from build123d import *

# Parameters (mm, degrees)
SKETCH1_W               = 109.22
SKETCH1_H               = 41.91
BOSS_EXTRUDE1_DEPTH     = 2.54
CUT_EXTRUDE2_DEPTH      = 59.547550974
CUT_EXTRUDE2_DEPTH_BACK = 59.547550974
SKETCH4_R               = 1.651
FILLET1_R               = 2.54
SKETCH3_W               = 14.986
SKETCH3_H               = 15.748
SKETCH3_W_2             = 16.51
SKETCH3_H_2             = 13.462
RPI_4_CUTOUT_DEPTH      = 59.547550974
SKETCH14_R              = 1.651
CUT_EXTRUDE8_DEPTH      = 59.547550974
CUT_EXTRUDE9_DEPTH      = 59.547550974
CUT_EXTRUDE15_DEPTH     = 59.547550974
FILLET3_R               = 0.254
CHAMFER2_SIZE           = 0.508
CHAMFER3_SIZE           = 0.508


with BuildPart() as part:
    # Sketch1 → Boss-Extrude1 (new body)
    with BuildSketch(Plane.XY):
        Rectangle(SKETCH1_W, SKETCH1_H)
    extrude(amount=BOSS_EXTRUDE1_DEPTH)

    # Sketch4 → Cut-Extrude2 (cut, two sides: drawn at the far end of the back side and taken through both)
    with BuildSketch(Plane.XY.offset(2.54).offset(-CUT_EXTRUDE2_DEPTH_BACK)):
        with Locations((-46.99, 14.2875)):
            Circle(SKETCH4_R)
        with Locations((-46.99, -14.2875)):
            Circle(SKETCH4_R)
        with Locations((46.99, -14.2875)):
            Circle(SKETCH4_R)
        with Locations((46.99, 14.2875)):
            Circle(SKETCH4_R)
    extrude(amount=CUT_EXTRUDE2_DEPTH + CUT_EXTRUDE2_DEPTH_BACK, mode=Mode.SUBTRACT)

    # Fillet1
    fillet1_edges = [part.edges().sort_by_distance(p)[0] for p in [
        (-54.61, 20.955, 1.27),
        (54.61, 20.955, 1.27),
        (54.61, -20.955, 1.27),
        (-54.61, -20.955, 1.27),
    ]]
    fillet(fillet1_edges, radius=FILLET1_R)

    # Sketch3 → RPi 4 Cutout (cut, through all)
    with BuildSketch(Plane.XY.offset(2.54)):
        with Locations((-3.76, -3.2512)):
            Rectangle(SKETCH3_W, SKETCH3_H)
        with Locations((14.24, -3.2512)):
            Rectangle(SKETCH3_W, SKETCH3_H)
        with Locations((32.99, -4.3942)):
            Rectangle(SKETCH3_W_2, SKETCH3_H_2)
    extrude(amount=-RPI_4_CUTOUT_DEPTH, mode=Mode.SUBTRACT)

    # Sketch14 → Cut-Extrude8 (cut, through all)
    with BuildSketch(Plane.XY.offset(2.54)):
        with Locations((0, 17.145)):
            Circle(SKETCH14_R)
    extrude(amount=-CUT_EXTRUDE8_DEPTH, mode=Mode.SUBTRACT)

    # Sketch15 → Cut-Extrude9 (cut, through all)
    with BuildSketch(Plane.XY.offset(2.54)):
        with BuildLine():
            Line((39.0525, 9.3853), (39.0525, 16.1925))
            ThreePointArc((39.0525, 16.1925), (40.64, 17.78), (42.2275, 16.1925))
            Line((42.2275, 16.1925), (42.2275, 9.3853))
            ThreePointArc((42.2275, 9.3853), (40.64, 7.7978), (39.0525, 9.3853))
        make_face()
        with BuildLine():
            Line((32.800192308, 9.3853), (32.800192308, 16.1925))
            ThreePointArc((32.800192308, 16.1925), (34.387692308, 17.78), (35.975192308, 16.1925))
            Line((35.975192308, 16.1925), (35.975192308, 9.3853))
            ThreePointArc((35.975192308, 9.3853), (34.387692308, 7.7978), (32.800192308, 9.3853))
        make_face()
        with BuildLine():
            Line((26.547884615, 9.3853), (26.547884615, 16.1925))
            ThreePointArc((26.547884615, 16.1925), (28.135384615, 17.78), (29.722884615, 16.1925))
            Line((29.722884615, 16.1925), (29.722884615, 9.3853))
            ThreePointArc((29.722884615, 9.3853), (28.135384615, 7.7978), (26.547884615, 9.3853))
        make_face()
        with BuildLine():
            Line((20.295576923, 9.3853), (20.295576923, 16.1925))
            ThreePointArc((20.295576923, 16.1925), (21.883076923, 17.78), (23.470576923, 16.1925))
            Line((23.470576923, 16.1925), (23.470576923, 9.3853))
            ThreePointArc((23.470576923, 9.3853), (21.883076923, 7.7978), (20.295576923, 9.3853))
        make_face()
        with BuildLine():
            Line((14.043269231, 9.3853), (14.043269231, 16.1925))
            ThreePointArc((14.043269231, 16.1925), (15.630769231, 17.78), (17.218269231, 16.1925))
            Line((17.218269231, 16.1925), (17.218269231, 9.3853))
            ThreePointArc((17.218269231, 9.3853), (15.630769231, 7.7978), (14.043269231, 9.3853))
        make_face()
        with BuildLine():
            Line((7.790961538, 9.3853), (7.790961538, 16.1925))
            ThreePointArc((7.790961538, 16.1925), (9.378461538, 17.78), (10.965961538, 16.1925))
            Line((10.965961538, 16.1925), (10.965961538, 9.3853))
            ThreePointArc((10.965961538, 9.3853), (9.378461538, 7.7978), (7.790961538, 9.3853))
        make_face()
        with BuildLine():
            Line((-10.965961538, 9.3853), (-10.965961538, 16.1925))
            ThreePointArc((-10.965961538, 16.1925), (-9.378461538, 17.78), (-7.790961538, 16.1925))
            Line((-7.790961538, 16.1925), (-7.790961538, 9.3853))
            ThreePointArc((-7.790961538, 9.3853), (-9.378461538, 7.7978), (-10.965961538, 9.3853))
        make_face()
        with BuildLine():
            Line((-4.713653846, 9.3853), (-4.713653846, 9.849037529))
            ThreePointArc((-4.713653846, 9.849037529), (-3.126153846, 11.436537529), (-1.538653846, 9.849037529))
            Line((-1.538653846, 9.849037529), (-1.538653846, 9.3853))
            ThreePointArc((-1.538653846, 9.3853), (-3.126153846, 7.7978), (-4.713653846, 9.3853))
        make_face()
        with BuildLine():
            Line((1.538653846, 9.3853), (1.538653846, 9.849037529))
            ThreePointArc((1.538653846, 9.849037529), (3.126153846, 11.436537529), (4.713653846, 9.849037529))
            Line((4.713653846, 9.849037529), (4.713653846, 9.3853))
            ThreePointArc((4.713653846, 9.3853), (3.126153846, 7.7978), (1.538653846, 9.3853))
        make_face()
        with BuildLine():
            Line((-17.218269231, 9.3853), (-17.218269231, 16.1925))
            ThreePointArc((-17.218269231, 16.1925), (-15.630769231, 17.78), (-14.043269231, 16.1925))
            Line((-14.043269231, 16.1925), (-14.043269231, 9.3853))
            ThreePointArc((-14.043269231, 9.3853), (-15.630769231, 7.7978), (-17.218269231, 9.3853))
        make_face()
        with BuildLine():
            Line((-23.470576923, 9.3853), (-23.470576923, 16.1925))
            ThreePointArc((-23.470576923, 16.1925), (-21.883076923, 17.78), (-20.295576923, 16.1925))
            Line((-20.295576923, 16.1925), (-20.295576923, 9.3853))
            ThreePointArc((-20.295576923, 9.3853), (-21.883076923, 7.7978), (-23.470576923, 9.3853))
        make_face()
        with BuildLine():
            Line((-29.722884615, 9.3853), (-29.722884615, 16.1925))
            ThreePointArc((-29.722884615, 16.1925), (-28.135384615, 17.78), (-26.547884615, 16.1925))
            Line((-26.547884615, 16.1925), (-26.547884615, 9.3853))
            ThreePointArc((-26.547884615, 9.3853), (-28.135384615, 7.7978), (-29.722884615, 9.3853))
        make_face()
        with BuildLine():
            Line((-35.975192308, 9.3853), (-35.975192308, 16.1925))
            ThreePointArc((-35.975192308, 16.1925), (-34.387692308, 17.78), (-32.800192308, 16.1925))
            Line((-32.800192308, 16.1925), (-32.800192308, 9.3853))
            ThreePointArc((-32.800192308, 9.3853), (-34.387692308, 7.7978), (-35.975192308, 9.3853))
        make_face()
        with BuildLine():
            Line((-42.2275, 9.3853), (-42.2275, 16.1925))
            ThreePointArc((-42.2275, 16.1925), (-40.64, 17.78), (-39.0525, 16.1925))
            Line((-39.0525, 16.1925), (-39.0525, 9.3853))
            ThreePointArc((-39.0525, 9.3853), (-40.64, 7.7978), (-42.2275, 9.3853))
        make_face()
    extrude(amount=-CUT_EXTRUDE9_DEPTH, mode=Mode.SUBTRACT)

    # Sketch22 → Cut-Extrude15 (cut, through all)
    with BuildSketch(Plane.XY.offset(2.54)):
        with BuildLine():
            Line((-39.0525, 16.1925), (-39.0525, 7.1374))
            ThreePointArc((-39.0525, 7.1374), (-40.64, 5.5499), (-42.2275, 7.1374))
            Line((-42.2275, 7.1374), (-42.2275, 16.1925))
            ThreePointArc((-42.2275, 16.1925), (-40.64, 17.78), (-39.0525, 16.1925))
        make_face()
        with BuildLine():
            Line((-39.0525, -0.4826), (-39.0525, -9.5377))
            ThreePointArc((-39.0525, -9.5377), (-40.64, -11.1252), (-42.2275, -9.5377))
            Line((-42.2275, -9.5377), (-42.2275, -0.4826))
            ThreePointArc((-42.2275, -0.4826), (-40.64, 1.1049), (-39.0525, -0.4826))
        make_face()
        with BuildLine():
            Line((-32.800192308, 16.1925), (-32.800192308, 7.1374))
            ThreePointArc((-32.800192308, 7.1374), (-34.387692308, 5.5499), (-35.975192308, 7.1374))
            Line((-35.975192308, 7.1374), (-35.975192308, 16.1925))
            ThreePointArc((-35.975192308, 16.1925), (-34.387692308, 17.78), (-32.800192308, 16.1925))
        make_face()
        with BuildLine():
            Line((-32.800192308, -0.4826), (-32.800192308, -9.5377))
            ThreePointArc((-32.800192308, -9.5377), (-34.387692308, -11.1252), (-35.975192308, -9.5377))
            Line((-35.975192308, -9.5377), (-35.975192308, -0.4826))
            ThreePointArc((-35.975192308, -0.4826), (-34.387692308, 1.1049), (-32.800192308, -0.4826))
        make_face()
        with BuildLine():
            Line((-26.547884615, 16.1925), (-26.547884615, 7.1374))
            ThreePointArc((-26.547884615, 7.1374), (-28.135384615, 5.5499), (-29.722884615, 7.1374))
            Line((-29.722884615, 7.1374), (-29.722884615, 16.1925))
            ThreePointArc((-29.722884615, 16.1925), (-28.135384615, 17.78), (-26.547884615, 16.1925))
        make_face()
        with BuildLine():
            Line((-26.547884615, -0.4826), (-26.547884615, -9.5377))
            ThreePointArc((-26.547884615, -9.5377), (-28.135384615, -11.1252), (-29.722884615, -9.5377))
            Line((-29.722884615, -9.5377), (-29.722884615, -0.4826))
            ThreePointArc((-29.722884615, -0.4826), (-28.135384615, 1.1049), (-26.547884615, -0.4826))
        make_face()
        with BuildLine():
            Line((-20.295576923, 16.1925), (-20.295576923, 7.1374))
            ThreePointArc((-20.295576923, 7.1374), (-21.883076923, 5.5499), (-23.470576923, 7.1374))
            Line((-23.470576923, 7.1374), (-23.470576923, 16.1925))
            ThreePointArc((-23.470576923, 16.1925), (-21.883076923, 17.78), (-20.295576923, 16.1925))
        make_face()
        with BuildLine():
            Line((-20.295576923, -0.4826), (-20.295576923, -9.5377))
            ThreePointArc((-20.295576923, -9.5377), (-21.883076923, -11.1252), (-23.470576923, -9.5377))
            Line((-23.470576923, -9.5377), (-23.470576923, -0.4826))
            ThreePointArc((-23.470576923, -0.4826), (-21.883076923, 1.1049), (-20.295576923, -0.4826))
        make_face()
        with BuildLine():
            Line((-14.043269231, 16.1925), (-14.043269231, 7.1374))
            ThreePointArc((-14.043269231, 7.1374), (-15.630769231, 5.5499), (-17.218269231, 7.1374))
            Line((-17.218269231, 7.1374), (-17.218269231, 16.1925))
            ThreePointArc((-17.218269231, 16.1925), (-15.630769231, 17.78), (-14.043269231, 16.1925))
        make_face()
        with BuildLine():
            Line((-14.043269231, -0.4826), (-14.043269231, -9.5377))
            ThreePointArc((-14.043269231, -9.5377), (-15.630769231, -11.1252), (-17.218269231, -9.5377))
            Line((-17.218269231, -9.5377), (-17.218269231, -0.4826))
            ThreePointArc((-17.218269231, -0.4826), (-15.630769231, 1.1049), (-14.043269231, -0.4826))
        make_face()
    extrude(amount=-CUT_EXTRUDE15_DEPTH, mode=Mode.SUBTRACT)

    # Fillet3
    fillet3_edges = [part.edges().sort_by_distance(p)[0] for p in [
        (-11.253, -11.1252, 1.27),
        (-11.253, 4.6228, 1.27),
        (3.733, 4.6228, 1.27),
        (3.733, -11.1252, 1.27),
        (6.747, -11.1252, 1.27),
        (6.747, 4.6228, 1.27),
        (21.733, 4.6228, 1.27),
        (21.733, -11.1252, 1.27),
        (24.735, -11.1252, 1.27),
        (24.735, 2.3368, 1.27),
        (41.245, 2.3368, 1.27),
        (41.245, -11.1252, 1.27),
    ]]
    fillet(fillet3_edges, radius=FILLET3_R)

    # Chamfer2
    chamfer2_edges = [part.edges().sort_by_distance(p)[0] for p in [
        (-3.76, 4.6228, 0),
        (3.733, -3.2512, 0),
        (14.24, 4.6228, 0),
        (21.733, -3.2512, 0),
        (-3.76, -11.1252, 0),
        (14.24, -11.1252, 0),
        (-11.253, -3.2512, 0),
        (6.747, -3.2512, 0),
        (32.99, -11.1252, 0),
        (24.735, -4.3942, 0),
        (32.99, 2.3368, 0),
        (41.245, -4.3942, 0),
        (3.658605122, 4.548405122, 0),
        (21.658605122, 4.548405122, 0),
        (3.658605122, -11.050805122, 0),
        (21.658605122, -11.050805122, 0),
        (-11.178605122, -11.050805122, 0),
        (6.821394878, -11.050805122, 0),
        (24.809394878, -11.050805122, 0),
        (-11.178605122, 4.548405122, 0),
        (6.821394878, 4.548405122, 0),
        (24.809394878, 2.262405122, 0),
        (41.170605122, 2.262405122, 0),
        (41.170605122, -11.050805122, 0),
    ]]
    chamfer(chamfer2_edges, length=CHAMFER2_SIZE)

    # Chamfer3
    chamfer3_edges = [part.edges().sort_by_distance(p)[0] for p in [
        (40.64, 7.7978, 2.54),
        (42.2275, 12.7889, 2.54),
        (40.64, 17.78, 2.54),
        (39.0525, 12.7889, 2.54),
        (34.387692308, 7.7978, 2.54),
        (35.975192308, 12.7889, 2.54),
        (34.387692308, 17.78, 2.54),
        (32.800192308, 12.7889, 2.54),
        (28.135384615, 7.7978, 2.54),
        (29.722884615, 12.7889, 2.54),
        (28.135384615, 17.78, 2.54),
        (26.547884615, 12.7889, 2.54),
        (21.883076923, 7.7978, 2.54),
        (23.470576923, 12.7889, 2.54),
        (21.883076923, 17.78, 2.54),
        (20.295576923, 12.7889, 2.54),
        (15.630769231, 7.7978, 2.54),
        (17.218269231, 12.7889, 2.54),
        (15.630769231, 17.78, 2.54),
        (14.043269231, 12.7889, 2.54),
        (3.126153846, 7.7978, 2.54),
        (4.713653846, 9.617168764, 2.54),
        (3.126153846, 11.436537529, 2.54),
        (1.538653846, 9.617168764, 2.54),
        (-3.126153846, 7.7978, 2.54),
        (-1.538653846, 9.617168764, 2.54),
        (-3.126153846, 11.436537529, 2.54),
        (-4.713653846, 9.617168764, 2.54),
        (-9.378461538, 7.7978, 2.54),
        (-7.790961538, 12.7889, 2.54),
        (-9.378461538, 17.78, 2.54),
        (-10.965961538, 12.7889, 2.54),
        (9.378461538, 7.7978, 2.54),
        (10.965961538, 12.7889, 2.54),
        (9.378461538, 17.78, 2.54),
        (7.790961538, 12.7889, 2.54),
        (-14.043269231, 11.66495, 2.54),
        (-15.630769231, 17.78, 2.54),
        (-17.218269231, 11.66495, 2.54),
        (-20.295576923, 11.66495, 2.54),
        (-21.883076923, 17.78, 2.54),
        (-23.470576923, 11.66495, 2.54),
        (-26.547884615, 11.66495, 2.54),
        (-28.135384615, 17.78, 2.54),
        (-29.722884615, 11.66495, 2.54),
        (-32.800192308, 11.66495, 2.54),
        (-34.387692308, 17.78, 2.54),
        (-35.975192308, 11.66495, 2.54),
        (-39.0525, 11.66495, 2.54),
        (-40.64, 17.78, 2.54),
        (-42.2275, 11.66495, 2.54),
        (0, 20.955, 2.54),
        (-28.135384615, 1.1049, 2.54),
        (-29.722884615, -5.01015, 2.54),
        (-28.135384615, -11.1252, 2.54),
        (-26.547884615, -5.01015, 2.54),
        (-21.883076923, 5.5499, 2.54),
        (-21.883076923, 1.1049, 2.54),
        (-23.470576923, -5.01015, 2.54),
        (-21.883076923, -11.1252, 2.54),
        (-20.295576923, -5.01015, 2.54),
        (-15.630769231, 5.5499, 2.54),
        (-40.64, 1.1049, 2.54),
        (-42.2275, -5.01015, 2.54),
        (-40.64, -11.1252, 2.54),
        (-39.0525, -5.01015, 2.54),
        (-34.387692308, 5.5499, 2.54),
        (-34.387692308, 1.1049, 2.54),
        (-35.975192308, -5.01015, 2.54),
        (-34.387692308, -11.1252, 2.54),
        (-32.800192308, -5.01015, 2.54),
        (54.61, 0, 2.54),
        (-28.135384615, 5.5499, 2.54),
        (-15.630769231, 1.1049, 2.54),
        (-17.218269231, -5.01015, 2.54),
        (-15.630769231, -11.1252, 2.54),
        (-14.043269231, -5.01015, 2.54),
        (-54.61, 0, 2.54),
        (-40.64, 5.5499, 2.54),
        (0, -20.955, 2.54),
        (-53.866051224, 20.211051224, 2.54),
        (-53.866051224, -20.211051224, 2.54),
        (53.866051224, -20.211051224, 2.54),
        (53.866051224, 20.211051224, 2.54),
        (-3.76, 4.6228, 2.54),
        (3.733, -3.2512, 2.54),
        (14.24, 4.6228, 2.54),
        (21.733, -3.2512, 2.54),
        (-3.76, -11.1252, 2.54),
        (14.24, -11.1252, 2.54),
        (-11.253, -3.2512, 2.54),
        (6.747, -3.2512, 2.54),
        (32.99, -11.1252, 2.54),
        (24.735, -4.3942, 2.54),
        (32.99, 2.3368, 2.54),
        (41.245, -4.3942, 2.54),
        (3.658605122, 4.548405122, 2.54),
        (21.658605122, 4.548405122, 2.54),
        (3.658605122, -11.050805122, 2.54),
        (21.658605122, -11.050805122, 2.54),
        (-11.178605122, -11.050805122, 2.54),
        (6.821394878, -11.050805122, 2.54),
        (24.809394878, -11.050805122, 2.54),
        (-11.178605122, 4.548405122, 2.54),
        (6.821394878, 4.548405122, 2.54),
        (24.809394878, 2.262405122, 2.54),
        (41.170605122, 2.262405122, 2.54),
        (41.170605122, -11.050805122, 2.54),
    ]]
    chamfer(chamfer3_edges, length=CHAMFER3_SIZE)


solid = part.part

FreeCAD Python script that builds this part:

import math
import FreeCAD as App
import Part
import Sketcher

V = App.Vector
Q = App.Units.Quantity


def edges_at(feature, points):
    """Names of the edges that pass closest to the given points."""
    edges = feature.Shape.Edges
    near = lambda p: min(range(len(edges)), key=lambda i: edges[i].distToShape(Part.Vertex(*p))[0])
    return sorted({f"Edge{near(p) + 1}" for p in points})

doc = App.newDocument("Part")
params = doc.addObject("Spreadsheet::Sheet", "Params")
for row, (alias, value) in enumerate([
    ("sketch1_width", "4.3 in"),
    ("sketch1_height", "1.65 in"),
    ("pad1_length", "0.1 in"),
    ("sketch2_diameter", "0.13 in"),
    ("fillet_radius", "0.1 in"),
    ("sketch3_width", "0.59 in"),
    ("sketch3_width2", "0.65 in"),
    ("sketch3_height", "0.62 in"),
    ("sketch3_height2", "0.53 in"),
    ("sketch4_diameter", "0.13 in"),
    ("sketch5_radius", "0.0625 in"),
    ("sketch5_height", "0.268 in"),
    ("sketch6_radius", "0.0625 in"),
    ("fillet2_radius", "0.01 in"),
    ("chamfer_size", "0.02 in"),
    ("chamfer2_size", "0.02 in"),
], start=1):
    params.set(f"A{row}", alias)
    params.set(f"B{row}", "=" + value)
    params.setAlias(f"B{row}", alias)

body = doc.addObject("PartDesign::Body", "Body")

# Sketch on XY plane
sketch1 = body.newObject("Sketcher::SketchObject", "Sketch")
sketch1.AttachmentSupport = (doc.getObject("XY_Plane"), [""])
sketch1.MapMode = "FlatFace"
sketch1.addGeometry([
    Part.LineSegment(V(-54.61, 20.955, 0), V(-54.61, -20.955, 0)),
    Part.LineSegment(V(-54.61, -20.955, 0), V(54.61, -20.955, 0)),
    Part.LineSegment(V(54.61, -20.955, 0), V(54.61, 20.955, 0)),
    Part.LineSegment(V(54.61, 20.955, 0), V(-54.61, 20.955, 0)),
], False)
sketch1.addConstraint([
    Sketcher.Constraint("Coincident", 0, 2, 1, 1),
    Sketcher.Constraint("Coincident", 1, 2, 2, 1),
    Sketcher.Constraint("Coincident", 2, 2, 3, 1),
    Sketcher.Constraint("Coincident", 3, 2, 0, 1),
    Sketcher.Constraint("Vertical", 0),
    Sketcher.Constraint("Horizontal", 1),
    Sketcher.Constraint("Vertical", 2),
    Sketcher.Constraint("Horizontal", 3),
    Sketcher.Constraint("Symmetric", 0, 2, 2, 2, -1, 1),
    Sketcher.Constraint("DistanceX", 1, 1, 1, 2, Q("4.3 in")),
    Sketcher.Constraint("DistanceY", 0, 2, 0, 1, Q("1.65 in")),
])
sketch1.setExpression("Constraints[9]", "Params.sketch1_width")
sketch1.setExpression("Constraints[10]", "Params.sketch1_height")
pad1 = body.newObject("PartDesign::Pad", "Pad")
pad1.Profile = sketch1
pad1.setExpression("Length", "Params.pad1_length")

# Sketch on XY plane
sketch2 = body.newObject("Sketcher::SketchObject", "Sketch001")
sketch2.AttachmentSupport = (doc.getObject("XY_Plane"), [""])
sketch2.MapMode = "FlatFace"
sketch2.AttachmentOffset = App.Placement(V(0, 0, 0.1 * 25.4), App.Rotation())
sketch2.addGeometry([
    Part.Circle(V(-46.99, 14.2875, 0), V(0, 0, 1), 1.651),
    Part.Circle(V(-46.99, -14.2875, 0), V(0, 0, 1), 1.651),
    Part.Circle(V(46.99, -14.2875, 0), V(0, 0, 1), 1.651),
    Part.Circle(V(46.99, 14.2875, 0), V(0, 0, 1), 1.651),
], False)
sketch2.addConstraint([
    Sketcher.Constraint("Equal", 0, 1),
    Sketcher.Constraint("Equal", 1, 2),
    Sketcher.Constraint("Equal", 2, 3),
    Sketcher.Constraint("Symmetric", 0, 3, 2, 3, -1, 1),
    Sketcher.Constraint("Symmetric", 1, 3, 3, 3, -1, 1),
    Sketcher.Constraint("Symmetric", 1, 3, 2, 3, -2),
    Sketcher.Constraint("Diameter", 0, Q("0.13 in")),
    Sketcher.Constraint("DistanceX", 1, 3, 2, 3, Q("3.7 in")),
    Sketcher.Constraint("DistanceY", -1, 1, 0, 3, Q("0.5625 in")),
])
sketch2.setExpression("Constraints[6]", "Params.sketch2_diameter")
pocket1 = body.newObject("PartDesign::Pocket", "Pocket")
pocket1.Profile = sketch2
pocket1.Type = "ThroughAll"
pocket1.Midplane = True
doc.recompute()

fillet = body.newObject("PartDesign::Fillet", "Fillet")
fillet.Base = (pocket1, edges_at(pocket1, [
    (-54.61, 20.955, 1.27),
    (54.61, 20.955, 1.27),
    (54.61, -20.955, 1.27),
    (-54.61, -20.955, 1.27),
]))
fillet.setExpression("Radius", "Params.fillet_radius")

# Sketch on XY plane
sketch3 = body.newObject("Sketcher::SketchObject", "Sketch002")
sketch3.AttachmentSupport = (doc.getObject("XY_Plane"), [""])
sketch3.MapMode = "FlatFace"
sketch3.AttachmentOffset = App.Placement(V(0, 0, 0.1 * 25.4), App.Rotation())
sketch3.addGeometry([
    Part.LineSegment(V(-11.253, 4.6228, 0), V(-11.253, -11.1252, 0)),  # 0
    Part.LineSegment(V(-11.253, -11.1252, 0), V(3.733, -11.1252, 0)),  # 1
    Part.LineSegment(V(3.733, -11.1252, 0), V(3.733, 4.6228, 0)),  # 2
    Part.LineSegment(V(3.733, 4.6228, 0), V(-11.253, 4.6228, 0)),  # 3
    Part.LineSegment(V(6.747, 4.6228, 0), V(6.747, -11.1252, 0)),  # 4
    Part.LineSegment(V(6.747, -11.1252, 0), V(21.733, -11.1252, 0)),  # 5
    Part.LineSegment(V(21.733, -11.1252, 0), V(21.733, 4.6228, 0)),  # 6
    Part.LineSegment(V(21.733, 4.6228, 0), V(6.747, 4.6228, 0)),  # 7
    Part.LineSegment(V(24.735, 2.3368, 0), V(24.735, -11.1252, 0)),  # 8
    Part.LineSegment(V(24.735, -11.1252, 0), V(41.245, -11.1252, 0)),  # 9
    Part.LineSegment(V(41.245, -11.1252, 0), V(41.245, 2.3368, 0)),  # 10
    Part.LineSegment(V(41.245, 2.3368, 0), V(24.735, 2.3368, 0)),  # 11
], False)
sketch3.addConstraint([
    Sketcher.Constraint("Coincident", 0, 2, 1, 1),
    Sketcher.Constraint("Coincident", 1, 2, 2, 1),
    Sketcher.Constraint("Coincident", 2, 2, 3, 1),
    Sketcher.Constraint("Coincident", 3, 2, 0, 1),
    Sketcher.Constraint("Coincident", 4, 2, 5, 1),
    Sketcher.Constraint("Coincident", 5, 2, 6, 1),
    Sketcher.Constraint("Coincident", 6, 2, 7, 1),
    Sketcher.Constraint("Coincident", 7, 2, 4, 1),
    Sketcher.Constraint("Coincident", 8, 2, 9, 1),
    Sketcher.Constraint("Coincident", 9, 2, 10, 1),
    Sketcher.Constraint("Coincident", 10, 2, 11, 1),
    Sketcher.Constraint("Coincident", 11, 2, 8, 1),
    Sketcher.Constraint("Vertical", 0),
    Sketcher.Constraint("Horizontal", 1),
    Sketcher.Constraint("Vertical", 2),
    Sketcher.Constraint("Horizontal", 3),
    Sketcher.Constraint("Vertical", 4),
    Sketcher.Constraint("Horizontal", 5),
    Sketcher.Constraint("Vertical", 6),
    Sketcher.Constraint("Horizontal", 7),
    Sketcher.Constraint("Vertical", 8),
    Sketcher.Constraint("Horizontal", 9),
    Sketcher.Constraint("Vertical", 10),
    Sketcher.Constraint("Horizontal", 11),
    Sketcher.Constraint("Horizontal", 1, 2, 4, 2),
    Sketcher.Constraint("Horizontal", 3, 2, 6, 2),
    Sketcher.Constraint("Horizontal", 5, 2, 8, 2),
    Sketcher.Constraint("Equal", 3, 5),
    Sketcher.Constraint("DistanceX", 1, 1, 1, 2, Q("0.59 in")),
    Sketcher.Constraint("DistanceX", 9, 1, 9, 2, Q("0.65 in")),
    Sketcher.Constraint("DistanceY", 0, 2, 0, 1, Q("0.62 in")),
    Sketcher.Constraint("DistanceY", 8, 2, 8, 1, Q("0.53 in")),
    Sketcher.Constraint("DistanceY", 0, 2, -1, 1, Q("0.438 in")),
    Sketcher.Constraint("DistanceX", 0, 2, -1, 1, Q("11.253 mm")),
    Sketcher.Constraint("DistanceX", -1, 1, 4, 2, Q("6.747 mm")),
    Sketcher.Constraint("DistanceX", -1, 1, 8, 2, Q("24.735 mm")),
])
sketch3.setExpression("Constraints[28]", "Params.sketch3_width")
sketch3.setExpression("Constraints[29]", "Params.sketch3_width2")
sketch3.setExpression("Constraints[30]", "Params.sketch3_height")
sketch3.setExpression("Constraints[31]", "Params.sketch3_height2")
pocket2 = body.newObject("PartDesign::Pocket", "Pocket001")
pocket2.Profile = sketch3
pocket2.Type = "ThroughAll"

# Sketch on XY plane
sketch4 = body.newObject("Sketcher::SketchObject", "Sketch003")
sketch4.AttachmentSupport = (doc.getObject("XY_Plane"), [""])
sketch4.MapMode = "FlatFace"
sketch4.AttachmentOffset = App.Placement(V(0, 0, 0.1 * 25.4), App.Rotation())
sketch4.addGeometry(Part.Circle(V(0, 17.145, 0), V(0, 0, 1), 1.651), False)
sketch4.addConstraint([
    Sketcher.Constraint("PointOnObject", 0, 3, -2),
    Sketcher.Constraint("Diameter", 0, Q("0.13 in")),
    Sketcher.Constraint("DistanceY", -1, 1, 0, 3, Q("0.675 in")),
])
sketch4.setExpression("Constraints[1]", "Params.sketch4_diameter")
pocket3 = body.newObject("PartDesign::Pocket", "Pocket002")
pocket3.Profile = sketch4
pocket3.Type = "ThroughAll"

# Sketch on XY plane
sketch5 = body.newObject("Sketcher::SketchObject", "Sketch004")
sketch5.AttachmentSupport = (doc.getObject("XY_Plane"), [""])
sketch5.MapMode = "FlatFace"
sketch5.AttachmentOffset = App.Placement(V(0, 0, 0.1 * 25.4), App.Rotation())
sketch5.addGeometry([
    Part.LineSegment(V(39.0525, 16.1925, 0), V(39.0525, 9.3853, 0)),  # 0
    Part.ArcOfCircle(Part.Circle(V(40.64, 9.3853, 0), V(0, 0, 1), 1.5875), math.radians(180), math.radians(360)),  # 1
    Part.LineSegment(V(42.2275, 9.3853, 0), V(42.2275, 16.1925, 0)),  # 2
    Part.ArcOfCircle(Part.Circle(V(40.64, 16.1925, 0), V(0, 0, 1), 1.5875), math.radians(0), math.radians(180)),  # 3
    Part.LineSegment(V(32.800192, 16.1925, 0), V(32.800192, 9.3853, 0)),  # 4
    Part.ArcOfCircle(Part.Circle(V(34.387692, 9.3853, 0), V(0, 0, 1), 1.5875), math.radians(180), math.radians(360)),  # 5
    Part.LineSegment(V(35.975192, 9.3853, 0), V(35.975192, 16.1925, 0)),  # 6
    Part.ArcOfCircle(Part.Circle(V(34.387692, 16.1925, 0), V(0, 0, 1), 1.5875), math.radians(0), math.radians(180)),  # 7
    Part.LineSegment(V(26.547885, 16.1925, 0), V(26.547885, 9.3853, 0)),  # 8
    Part.ArcOfCircle(Part.Circle(V(28.135385, 9.3853, 0), V(0, 0, 1), 1.5875), math.radians(180), math.radians(360)),  # 9
    Part.LineSegment(V(29.722885, 9.3853, 0), V(29.722885, 16.1925, 0)),  # 10
    Part.ArcOfCircle(Part.Circle(V(28.135385, 16.1925, 0), V(0, 0, 1), 1.5875), math.radians(0), math.radians(180)),  # 11
    Part.LineSegment(V(20.295577, 16.1925, 0), V(20.295577, 9.3853, 0)),  # 12
    Part.ArcOfCircle(Part.Circle(V(21.883077, 9.3853, 0), V(0, 0, 1), 1.5875), math.radians(180), math.radians(360)),  # 13
    Part.LineSegment(V(23.470577, 9.3853, 0), V(23.470577, 16.1925, 0)),  # 14
    Part.ArcOfCircle(Part.Circle(V(21.883077, 16.1925, 0), V(0, 0, 1), 1.5875), math.radians(0), math.radians(180)),  # 15
    Part.LineSegment(V(14.043269, 16.1925, 0), V(14.043269, 9.3853, 0)),  # 16
    Part.ArcOfCircle(Part.Circle(V(15.630769, 9.3853, 0), V(0, 0, 1), 1.5875), math.radians(180), math.radians(360)),  # 17
    Part.LineSegment(V(17.218269, 9.3853, 0), V(17.218269, 16.1925, 0)),  # 18
    Part.ArcOfCircle(Part.Circle(V(15.630769, 16.1925, 0), V(0, 0, 1), 1.5875), math.radians(0), math.radians(180)),  # 19
    Part.LineSegment(V(7.790962, 16.1925, 0), V(7.790962, 9.3853, 0)),  # 20
    Part.ArcOfCircle(Part.Circle(V(9.378462, 9.3853, 0), V(0, 0, 1), 1.5875), math.radians(180), math.radians(360)),  # 21
    Part.LineSegment(V(10.965962, 9.3853, 0), V(10.965962, 16.1925, 0)),  # 22
    Part.ArcOfCircle(Part.Circle(V(9.378462, 16.1925, 0), V(0, 0, 1), 1.5875), math.radians(0), math.radians(180)),  # 23
    Part.LineSegment(V(-10.965962, 16.1925, 0), V(-10.965962, 9.3853, 0)),  # 24
    Part.ArcOfCircle(Part.Circle(V(-9.378462, 9.3853, 0), V(0, 0, 1), 1.5875), math.radians(180), math.radians(360)),  # 25
    Part.LineSegment(V(-7.790962, 9.3853, 0), V(-7.790962, 16.1925, 0)),  # 26
    Part.ArcOfCircle(Part.Circle(V(-9.378462, 16.1925, 0), V(0, 0, 1), 1.5875), math.radians(0), math.radians(180)),  # 27
    Part.LineSegment(V(-4.713654, 9.849038, 0), V(-4.713654, 9.3853, 0)),  # 28
    Part.ArcOfCircle(Part.Circle(V(-3.126154, 9.3853, 0), V(0, 0, 1), 1.5875), math.radians(180), math.radians(360)),  # 29
    Part.LineSegment(V(-1.538654, 9.3853, 0), V(-1.538654, 9.849038, 0)),  # 30
    Part.ArcOfCircle(Part.Circle(V(-3.126154, 9.849038, 0), V(0, 0, 1), 1.5875), math.radians(0), math.radians(180)),  # 31
    Part.LineSegment(V(1.538654, 9.849038, 0), V(1.538654, 9.3853, 0)),  # 32
    Part.ArcOfCircle(Part.Circle(V(3.126154, 9.3853, 0), V(0, 0, 1), 1.5875), math.radians(180), math.radians(360)),  # 33
    Part.LineSegment(V(4.713654, 9.3853, 0), V(4.713654, 9.849038, 0)),  # 34
    Part.ArcOfCircle(Part.Circle(V(3.126154, 9.849038, 0), V(0, 0, 1), 1.5875), math.radians(0), math.radians(180)),  # 35
    Part.LineSegment(V(-17.218269, 16.1925, 0), V(-17.218269, 9.3853, 0)),  # 36
    Part.ArcOfCircle(Part.Circle(V(-15.630769, 9.3853, 0), V(0, 0, 1), 1.5875), math.radians(180), math.radians(360)),  # 37
    Part.LineSegment(V(-14.043269, 9.3853, 0), V(-14.043269, 16.1925, 0)),  # 38
    Part.ArcOfCircle(Part.Circle(V(-15.630769, 16.1925, 0), V(0, 0, 1), 1.5875), math.radians(0), math.radians(180)),  # 39
    Part.LineSegment(V(-23.470577, 16.1925, 0), V(-23.470577, 9.3853, 0)),  # 40
    Part.ArcOfCircle(Part.Circle(V(-21.883077, 9.3853, 0), V(0, 0, 1), 1.5875), math.radians(180), math.radians(360)),  # 41
    Part.LineSegment(V(-20.295577, 9.3853, 0), V(-20.295577, 16.1925, 0)),  # 42
    Part.ArcOfCircle(Part.Circle(V(-21.883077, 16.1925, 0), V(0, 0, 1), 1.5875), math.radians(0), math.radians(180)),  # 43
    Part.LineSegment(V(-29.722885, 16.1925, 0), V(-29.722885, 9.3853, 0)),  # 44
    Part.ArcOfCircle(Part.Circle(V(-28.135385, 9.3853, 0), V(0, 0, 1), 1.5875), math.radians(180), math.radians(360)),  # 45
    Part.LineSegment(V(-26.547885, 9.3853, 0), V(-26.547885, 16.1925, 0)),  # 46
    Part.ArcOfCircle(Part.Circle(V(-28.135385, 16.1925, 0), V(0, 0, 1), 1.5875), math.radians(0), math.radians(180)),  # 47
    Part.LineSegment(V(-35.975192, 16.1925, 0), V(-35.975192, 9.3853, 0)),  # 48
    Part.ArcOfCircle(Part.Circle(V(-34.387692, 9.3853, 0), V(0, 0, 1), 1.5875), math.radians(180), math.radians(360)),  # 49
    Part.LineSegment(V(-32.800192, 9.3853, 0), V(-32.800192, 16.1925, 0)),  # 50
    Part.ArcOfCircle(Part.Circle(V(-34.387692, 16.1925, 0), V(0, 0, 1), 1.5875), math.radians(0), math.radians(180)),  # 51
    Part.LineSegment(V(-42.2275, 16.1925, 0), V(-42.2275, 9.3853, 0)),  # 52
    Part.ArcOfCircle(Part.Circle(V(-40.64, 9.3853, 0), V(0, 0, 1), 1.5875), math.radians(180), math.radians(360)),  # 53
    Part.LineSegment(V(-39.0525, 9.3853, 0), V(-39.0525, 16.1925, 0)),  # 54
    Part.ArcOfCircle(Part.Circle(V(-40.64, 16.1925, 0), V(0, 0, 1), 1.5875), math.radians(0), math.radians(180)),  # 55
], False)
sketch5.addConstraint([
    Sketcher.Constraint("Tangent", 0, 2, 1, 1),
    Sketcher.Constraint("Tangent", 1, 2, 2, 1),
    Sketcher.Constraint("Tangent", 2, 2, 3, 1),
    Sketcher.Constraint("Tangent", 3, 2, 0, 1),
    Sketcher.Constraint("Tangent", 4, 2, 5, 1),
    Sketcher.Constraint("Tangent", 5, 2, 6, 1),
    Sketcher.Constraint("Tangent", 6, 2, 7, 1),
    Sketcher.Constraint("Tangent", 7, 2, 4, 1),
    Sketcher.Constraint("Tangent", 8, 2, 9, 1),
    Sketcher.Constraint("Tangent", 9, 2, 10, 1),
    Sketcher.Constraint("Tangent", 10, 2, 11, 1),
    Sketcher.Constraint("Tangent", 11, 2, 8, 1),
    Sketcher.Constraint("Tangent", 12, 2, 13, 1),
    Sketcher.Constraint("Tangent", 13, 2, 14, 1),
    Sketcher.Constraint("Tangent", 14, 2, 15, 1),
    Sketcher.Constraint("Tangent", 15, 2, 12, 1),
    Sketcher.Constraint("Tangent", 16, 2, 17, 1),
    Sketcher.Constraint("Tangent", 17, 2, 18, 1),
    Sketcher.Constraint("Tangent", 18, 2, 19, 1),
    Sketcher.Constraint("Tangent", 19, 2, 16, 1),
    Sketcher.Constraint("Tangent", 20, 2, 21, 1),
    Sketcher.Constraint("Tangent", 21, 2, 22, 1),
    Sketcher.Constraint("Tangent", 22, 2, 23, 1),
    Sketcher.Constraint("Tangent", 23, 2, 20, 1),
    Sketcher.Constraint("Tangent", 24, 2, 25, 1),
    Sketcher.Constraint("Tangent", 25, 2, 26, 1),
    Sketcher.Constraint("Tangent", 26, 2, 27, 1),
    Sketcher.Constraint("Tangent", 27, 2, 24, 1),
    Sketcher.Constraint("Tangent", 28, 2, 29, 1),
    Sketcher.Constraint("Tangent", 29, 2, 30, 1),
    Sketcher.Constraint("Tangent", 30, 2, 31, 1),
    Sketcher.Constraint("Tangent", 31, 2, 28, 1),
    Sketcher.Constraint("Tangent", 32, 2, 33, 1),
    Sketcher.Constraint("Tangent", 33, 2, 34, 1),
    Sketcher.Constraint("Tangent", 34, 2, 35, 1),
    Sketcher.Constraint("Tangent", 35, 2, 32, 1),
    Sketcher.Constraint("Tangent", 36, 2, 37, 1),
    Sketcher.Constraint("Tangent", 37, 2, 38, 1),
    Sketcher.Constraint("Tangent", 38, 2, 39, 1),
    Sketcher.Constraint("Tangent", 39, 2, 36, 1),
    Sketcher.Constraint("Tangent", 40, 2, 41, 1),
    Sketcher.Constraint("Tangent", 41, 2, 42, 1),
    Sketcher.Constraint("Tangent", 42, 2, 43, 1),
    Sketcher.Constraint("Tangent", 43, 2, 40, 1),
    Sketcher.Constraint("Tangent", 44, 2, 45, 1),
    Sketcher.Constraint("Tangent", 45, 2, 46, 1),
    Sketcher.Constraint("Tangent", 46, 2, 47, 1),
    Sketcher.Constraint("Tangent", 47, 2, 44, 1),
    Sketcher.Constraint("Tangent", 48, 2, 49, 1),
    Sketcher.Constraint("Tangent", 49, 2, 50, 1),
    Sketcher.Constraint("Tangent", 50, 2, 51, 1),
    Sketcher.Constraint("Tangent", 51, 2, 48, 1),
    Sketcher.Constraint("Tangent", 52, 2, 53, 1),
    Sketcher.Constraint("Tangent", 53, 2, 54, 1),
    Sketcher.Constraint("Tangent", 54, 2, 55, 1),
    Sketcher.Constraint("Tangent", 55, 2, 52, 1),
    Sketcher.Constraint("Vertical", 0),
    Sketcher.Constraint("Vertical", 2),
    Sketcher.Constraint("Vertical", 4),
    Sketcher.Constraint("Vertical", 6),
    Sketcher.Constraint("Vertical", 8),
    Sketcher.Constraint("Vertical", 10),
    Sketcher.Constraint("Vertical", 12),
    Sketcher.Constraint("Vertical", 14),
    Sketcher.Constraint("Vertical", 16),
    Sketcher.Constraint("Vertical", 18),
    Sketcher.Constraint("Vertical", 20),
    Sketcher.Constraint("Vertical", 22),
    Sketcher.Constraint("Vertical", 24),
    Sketcher.Constraint("Vertical", 26),
    Sketcher.Constraint("Vertical", 28),
    Sketcher.Constraint("Vertical", 30),
    Sketcher.Constraint("Vertical", 32),
    Sketcher.Constraint("Vertical", 34),
    Sketcher.Constraint("Vertical", 36),
    Sketcher.Constraint("Vertical", 38),
    Sketcher.Constraint("Vertical", 40),
    Sketcher.Constraint("Vertical", 42),
    Sketcher.Constraint("Vertical", 44),
    Sketcher.Constraint("Vertical", 46),
    Sketcher.Constraint("Vertical", 48),
    Sketcher.Constraint("Vertical", 50),
    Sketcher.Constraint("Vertical", 52),
    Sketcher.Constraint("Vertical", 54),
    Sketcher.Constraint("Equal", 3, 5),
    Sketcher.Constraint("Equal", 7, 9),
    Sketcher.Constraint("Equal", 11, 13),
    Sketcher.Constraint("Equal", 15, 17),
    Sketcher.Constraint("Equal", 19, 21),
    Sketcher.Constraint("Equal", 23, 25),
    Sketcher.Constraint("Equal", 27, 29),
    Sketcher.Constraint("Equal", 31, 33),
    Sketcher.Constraint("Equal", 35, 37),
    Sketcher.Constraint("Equal", 39, 41),
    Sketcher.Constraint("Equal", 43, 45),
    Sketcher.Constraint("Equal", 47, 49),
    Sketcher.Constraint("Equal", 51, 53),
    Sketcher.Constraint("Symmetric", 21, 3, 25, 3, -2),
    Sketcher.Constraint("Symmetric", 29, 3, 33, 3, -2),
    Sketcher.Constraint("Symmetric", 17, 3, 37, 3, -2),
    Sketcher.Constraint("Symmetric", 13, 3, 41, 3, -2),
    Sketcher.Constraint("Symmetric", 9, 3, 45, 3, -2),
    Sketcher.Constraint("Symmetric", 5, 3, 49, 3, -2),
    Sketcher.Constraint("Symmetric", 1, 3, 53, 3, -2),
    Sketcher.Constraint("Horizontal", 1, 3, 5, 3),
    Sketcher.Constraint("Horizontal", 3, 3, 7, 3),
    Sketcher.Constraint("Horizontal", 5, 3, 9, 3),
    Sketcher.Constraint("Horizontal", 7, 3, 11, 3),
    Sketcher.Constraint("Horizontal", 9, 3, 13, 3),
    Sketcher.Constraint("Horizontal", 11, 3, 15, 3),
    Sketcher.Constraint("Horizontal", 13, 3, 17, 3),
    Sketcher.Constraint("Horizontal", 15, 3, 19, 3),
    Sketcher.Constraint("Horizontal", 17, 3, 21, 3),
    Sketcher.Constraint("Horizontal", 19, 3, 23, 3),
    Sketcher.Constraint("Horizontal", 23, 3, 27, 3),
    Sketcher.Constraint("Horizontal", 25, 3, 29, 3),
    Sketcher.Constraint("Horizontal", 31, 3, 35, 3),
    Sketcher.Constraint("Horizontal", 27, 3, 39, 3),
    Sketcher.Constraint("Horizontal", 39, 3, 43, 3),
    Sketcher.Constraint("Horizontal", 43, 3, 47, 3),
    Sketcher.Constraint("Horizontal", 47, 3, 51, 3),
    Sketcher.Constraint("Horizontal", 51, 3, 55, 3),
    Sketcher.Constraint("Radius", 1, Q("0.0625 in")),
    Sketcher.Constraint("DistanceX", -1, 1, 1, 3, Q("1.6 in")),
    Sketcher.Constraint("DistanceY", 0, 2, 0, 1, Q("0.268 in")),
    Sketcher.Constraint("DistanceY", -1, 1, 1, 3, Q("0.3695 in")),
    Sketcher.Constraint("DistanceY", 28, 2, 28, 1, Q("0.463738 mm")),
    Sketcher.Constraint("DistanceX", -1, 1, 17, 3, Q("15.630769 mm")),
    Sketcher.Constraint("DistanceX", -1, 1, 21, 3, Q("9.378462 mm")),
    Sketcher.Constraint("DistanceX", -1, 1, 5, 3, Q("34.387692 mm")),
    Sketcher.Constraint("DistanceX", -1, 1, 9, 3, Q("28.135385 mm")),
    Sketcher.Constraint("DistanceX", -1, 1, 13, 3, Q("21.883077 mm")),
    Sketcher.Constraint("DistanceX", 29, 3, -1, 1, Q("3.126154 mm")),
])
sketch5.setExpression("Constraints[122]", "Params.sketch5_radius")
sketch5.setExpression("Constraints[124]", "Params.sketch5_height")
pocket4 = body.newObject("PartDesign::Pocket", "Pocket003")
pocket4.Profile = sketch5
pocket4.Type = "ThroughAll"

# Sketch on XY plane
sketch6 = body.newObject("Sketcher::SketchObject", "Sketch005")
sketch6.AttachmentSupport = (doc.getObject("XY_Plane"), [""])
sketch6.MapMode = "FlatFace"
sketch6.AttachmentOffset = App.Placement(V(0, 0, 0.1 * 25.4), App.Rotation())
sketch6.addGeometry([
    Part.LineSegment(V(-39.0525, 7.1374, 0), V(-39.0525, 16.1925, 0)),  # 0
    Part.ArcOfCircle(Part.Circle(V(-40.64, 16.1925, 0), V(0, 0, 1), 1.5875), math.radians(0), math.radians(180)),  # 1
    Part.LineSegment(V(-42.2275, 16.1925, 0), V(-42.2275, 7.1374, 0)),  # 2
    Part.ArcOfCircle(Part.Circle(V(-40.64, 7.1374, 0), V(0, 0, 1), 1.5875), math.radians(180), math.radians(360)),  # 3
    Part.LineSegment(V(-39.0525, -9.5377, 0), V(-39.0525, -0.4826, 0)),  # 4
    Part.ArcOfCircle(Part.Circle(V(-40.64, -0.4826, 0), V(0, 0, 1), 1.5875), math.radians(0), math.radians(180)),  # 5
    Part.LineSegment(V(-42.2275, -0.4826, 0), V(-42.2275, -9.5377, 0)),  # 6
    Part.ArcOfCircle(Part.Circle(V(-40.64, -9.5377, 0), V(0, 0, 1), 1.5875), math.radians(180), math.radians(360)),  # 7
    Part.LineSegment(V(-32.800192, 7.1374, 0), V(-32.800192, 16.1925, 0)),  # 8
    Part.ArcOfCircle(Part.Circle(V(-34.387692, 16.1925, 0), V(0, 0, 1), 1.5875), math.radians(0), math.radians(180)),  # 9
    Part.LineSegment(V(-35.975192, 16.1925, 0), V(-35.975192, 7.1374, 0)),  # 10
    Part.ArcOfCircle(Part.Circle(V(-34.387692, 7.1374, 0), V(0, 0, 1), 1.5875), math.radians(180), math.radians(360)),  # 11
    Part.LineSegment(V(-32.800192, -9.5377, 0), V(-32.800192, -0.4826, 0)),  # 12
    Part.ArcOfCircle(Part.Circle(V(-34.387692, -0.4826, 0), V(0, 0, 1), 1.5875), math.radians(0), math.radians(180)),  # 13
    Part.LineSegment(V(-35.975192, -0.4826, 0), V(-35.975192, -9.5377, 0)),  # 14
    Part.ArcOfCircle(Part.Circle(V(-34.387692, -9.5377, 0), V(0, 0, 1), 1.5875), math.radians(180), math.radians(360)),  # 15
    Part.LineSegment(V(-26.547885, 7.1374, 0), V(-26.547885, 16.1925, 0)),  # 16
    Part.ArcOfCircle(Part.Circle(V(-28.135385, 16.1925, 0), V(0, 0, 1), 1.5875), math.radians(0), math.radians(180)),  # 17
    Part.LineSegment(V(-29.722885, 16.1925, 0), V(-29.722885, 7.1374, 0)),  # 18
    Part.ArcOfCircle(Part.Circle(V(-28.135385, 7.1374, 0), V(0, 0, 1), 1.5875), math.radians(180), math.radians(360)),  # 19
    Part.LineSegment(V(-26.547885, -9.5377, 0), V(-26.547885, -0.4826, 0)),  # 20
    Part.ArcOfCircle(Part.Circle(V(-28.135385, -0.4826, 0), V(0, 0, 1), 1.5875), math.radians(0), math.radians(180)),  # 21
    Part.LineSegment(V(-29.722885, -0.4826, 0), V(-29.722885, -9.5377, 0)),  # 22
    Part.ArcOfCircle(Part.Circle(V(-28.135385, -9.5377, 0), V(0, 0, 1), 1.5875), math.radians(180), math.radians(360)),  # 23
    Part.LineSegment(V(-20.295577, 7.1374, 0), V(-20.295577, 16.1925, 0)),  # 24
    Part.ArcOfCircle(Part.Circle(V(-21.883077, 16.1925, 0), V(0, 0, 1), 1.5875), math.radians(0), math.radians(180)),  # 25
    Part.LineSegment(V(-23.470577, 16.1925, 0), V(-23.470577, 7.1374, 0)),  # 26
    Part.ArcOfCircle(Part.Circle(V(-21.883077, 7.1374, 0), V(0, 0, 1), 1.5875), math.radians(180), math.radians(360)),  # 27
    Part.LineSegment(V(-20.295577, -9.5377, 0), V(-20.295577, -0.4826, 0)),  # 28
    Part.ArcOfCircle(Part.Circle(V(-21.883077, -0.4826, 0), V(0, 0, 1), 1.5875), math.radians(0), math.radians(180)),  # 29
    Part.LineSegment(V(-23.470577, -0.4826, 0), V(-23.470577, -9.5377, 0)),  # 30
    Part.ArcOfCircle(Part.Circle(V(-21.883077, -9.5377, 0), V(0, 0, 1), 1.5875), math.radians(180), math.radians(360)),  # 31
    Part.LineSegment(V(-14.043269, 7.1374, 0), V(-14.043269, 16.1925, 0)),  # 32
    Part.ArcOfCircle(Part.Circle(V(-15.630769, 16.1925, 0), V(0, 0, 1), 1.5875), math.radians(0), math.radians(180)),  # 33
    Part.LineSegment(V(-17.218269, 16.1925, 0), V(-17.218269, 7.1374, 0)),  # 34
    Part.ArcOfCircle(Part.Circle(V(-15.630769, 7.1374, 0), V(0, 0, 1), 1.5875), math.radians(180), math.radians(360)),  # 35
    Part.LineSegment(V(-14.043269, -9.5377, 0), V(-14.043269, -0.4826, 0)),  # 36
    Part.ArcOfCircle(Part.Circle(V(-15.630769, -0.4826, 0), V(0, 0, 1), 1.5875), math.radians(0), math.radians(180)),  # 37
    Part.LineSegment(V(-17.218269, -0.4826, 0), V(-17.218269, -9.5377, 0)),  # 38
    Part.ArcOfCircle(Part.Circle(V(-15.630769, -9.5377, 0), V(0, 0, 1), 1.5875), math.radians(180), math.radians(360)),  # 39
], False)
sketch6.addConstraint([
    Sketcher.Constraint("Tangent", 0, 2, 1, 1),
    Sketcher.Constraint("Tangent", 1, 2, 2, 1),
    Sketcher.Constraint("Tangent", 2, 2, 3, 1),
    Sketcher.Constraint("Tangent", 3, 2, 0, 1),
    Sketcher.Constraint("Tangent", 4, 2, 5, 1),
    Sketcher.Constraint("Tangent", 5, 2, 6, 1),
    Sketcher.Constraint("Tangent", 6, 2, 7, 1),
    Sketcher.Constraint("Tangent", 7, 2, 4, 1),
    Sketcher.Constraint("Tangent", 8, 2, 9, 1),
    Sketcher.Constraint("Tangent", 9, 2, 10, 1),
    Sketcher.Constraint("Tangent", 10, 2, 11, 1),
    Sketcher.Constraint("Tangent", 11, 2, 8, 1),
    Sketcher.Constraint("Tangent", 12, 2, 13, 1),
    Sketcher.Constraint("Tangent", 13, 2, 14, 1),
    Sketcher.Constraint("Tangent", 14, 2, 15, 1),
    Sketcher.Constraint("Tangent", 15, 2, 12, 1),
    Sketcher.Constraint("Tangent", 16, 2, 17, 1),
    Sketcher.Constraint("Tangent", 17, 2, 18, 1),
    Sketcher.Constraint("Tangent", 18, 2, 19, 1),
    Sketcher.Constraint("Tangent", 19, 2, 16, 1),
    Sketcher.Constraint("Tangent", 20, 2, 21, 1),
    Sketcher.Constraint("Tangent", 21, 2, 22, 1),
    Sketcher.Constraint("Tangent", 22, 2, 23, 1),
    Sketcher.Constraint("Tangent", 23, 2, 20, 1),
    Sketcher.Constraint("Tangent", 24, 2, 25, 1),
    Sketcher.Constraint("Tangent", 25, 2, 26, 1),
    Sketcher.Constraint("Tangent", 26, 2, 27, 1),
    Sketcher.Constraint("Tangent", 27, 2, 24, 1),
    Sketcher.Constraint("Tangent", 28, 2, 29, 1),
    Sketcher.Constraint("Tangent", 29, 2, 30, 1),
    Sketcher.Constraint("Tangent", 30, 2, 31, 1),
    Sketcher.Constraint("Tangent", 31, 2, 28, 1),
    Sketcher.Constraint("Tangent", 32, 2, 33, 1),
    Sketcher.Constraint("Tangent", 33, 2, 34, 1),
    Sketcher.Constraint("Tangent", 34, 2, 35, 1),
    Sketcher.Constraint("Tangent", 35, 2, 32, 1),
    Sketcher.Constraint("Tangent", 36, 2, 37, 1),
    Sketcher.Constraint("Tangent", 37, 2, 38, 1),
    Sketcher.Constraint("Tangent", 38, 2, 39, 1),
    Sketcher.Constraint("Tangent", 39, 2, 36, 1),
    Sketcher.Constraint("Vertical", 0),
    Sketcher.Constraint("Vertical", 2),
    Sketcher.Constraint("Vertical", 4),
    Sketcher.Constraint("Vertical", 6),
    Sketcher.Constraint("Vertical", 8),
    Sketcher.Constraint("Vertical", 10),
    Sketcher.Constraint("Vertical", 12),
    Sketcher.Constraint("Vertical", 14),
    Sketcher.Constraint("Vertical", 16),
    Sketcher.Constraint("Vertical", 18),
    Sketcher.Constraint("Vertical", 20),
    Sketcher.Constraint("Vertical", 22),
    Sketcher.Constraint("Vertical", 24),
    Sketcher.Constraint("Vertical", 26),
    Sketcher.Constraint("Vertical", 28),
    Sketcher.Constraint("Vertical", 30),
    Sketcher.Constraint("Vertical", 32),
    Sketcher.Constraint("Vertical", 34),
    Sketcher.Constraint("Vertical", 36),
    Sketcher.Constraint("Vertical", 38),
    Sketcher.Constraint("Equal", 3, 5),
    Sketcher.Constraint("Equal", 7, 9),
    Sketcher.Constraint("Equal", 11, 13),
    Sketcher.Constraint("Equal", 15, 17),
    Sketcher.Constraint("Equal", 19, 21),
    Sketcher.Constraint("Equal", 23, 25),
    Sketcher.Constraint("Equal", 27, 29),
    Sketcher.Constraint("Equal", 31, 33),
    Sketcher.Constraint("Equal", 35, 37),
    Sketcher.Constraint("Horizontal", 1, 3, 9, 3),
    Sketcher.Constraint("Horizontal", 3, 3, 11, 3),
    Sketcher.Constraint("Horizontal", 5, 3, 13, 3),
    Sketcher.Constraint("Horizontal", 7, 3, 15, 3),
    Sketcher.Constraint("Horizontal", 9, 3, 17, 3),
    Sketcher.Constraint("Horizontal", 11, 3, 19, 3),
    Sketcher.Constraint("Horizontal", 13, 3, 21, 3),
    Sketcher.Constraint("Horizontal", 15, 3, 23, 3),
    Sketcher.Constraint("Horizontal", 17, 3, 25, 3),
    Sketcher.Constraint("Horizontal", 19, 3, 27, 3),
    Sketcher.Constraint("Horizontal", 21, 3, 29, 3),
    Sketcher.Constraint("Horizontal", 23, 3, 31, 3),
    Sketcher.Constraint("Horizontal", 25, 3, 33, 3),
    Sketcher.Constraint("Horizontal", 27, 3, 35, 3),
    Sketcher.Constraint("Horizontal", 29, 3, 37, 3),
    Sketcher.Constraint("Horizontal", 31, 3, 39, 3),
    Sketcher.Constraint("Vertical", 3, 3, 5, 3),
    Sketcher.Constraint("Vertical", 11, 3, 13, 3),
    Sketcher.Constraint("Vertical", 19, 3, 21, 3),
    Sketcher.Constraint("Vertical", 27, 3, 29, 3),
    Sketcher.Constraint("Vertical", 35, 3, 37, 3),
    Sketcher.Constraint("Equal", 2, 4),
    Sketcher.Constraint("Radius", 1, Q("0.0625 in")),
    Sketcher.Constraint("DistanceX", 1, 3, -1, 1, Q("1.6 in")),
    Sketcher.Constraint("DistanceY", 5, 3, 3, 3, Q("0.3 in")),
    Sketcher.Constraint("DistanceY", 0, 1, 0, 2, Q("0.3565 in")),
    Sketcher.Constraint("DistanceY", -1, 1, 3, 3, Q("0.281 in")),
    Sketcher.Constraint("DistanceX", 33, 3, -1, 1, Q("15.630769 mm")),
    Sketcher.Constraint("DistanceX", 9, 3, -1, 1, Q("34.387692 mm")),
    Sketcher.Constraint("DistanceX", 17, 3, -1, 1, Q("28.135385 mm")),
    Sketcher.Constraint("DistanceX", 25, 3, -1, 1, Q("21.883077 mm")),
])
sketch6.setExpression("Constraints[91]", "Params.sketch6_radius")
pocket5 = body.newObject("PartDesign::Pocket", "Pocket004")
pocket5.Profile = sketch6
pocket5.Type = "ThroughAll"
doc.recompute()

fillet2 = body.newObject("PartDesign::Fillet", "Fillet001")
fillet2.Base = (pocket5, edges_at(pocket5, [
    (-11.253, -11.125, 1.27),
    (-11.253, 4.623, 1.27),
    (3.733, 4.623, 1.27),
    (3.733, -11.125, 1.27),
    (6.747, -11.125, 1.27),
    (6.747, 4.623, 1.27),
    (21.733, 4.623, 1.27),
    (21.733, -11.125, 1.27),
    (24.735, -11.125, 1.27),
    (24.735, 2.337, 1.27),
    (41.245, 2.337, 1.27),
    (41.245, -11.125, 1.27),
]))
fillet2.setExpression("Radius", "Params.fillet2_radius")
doc.recompute()

chamfer = body.newObject("PartDesign::Chamfer", "Chamfer")
chamfer.Base = (fillet2, edges_at(fillet2, [
    (-3.76, 4.623, 0),
    (3.733, -3.251, 0),
    (14.24, 4.623, 0),
    (21.733, -3.251, 0),
    (-3.76, -11.125, 0),
    (14.24, -11.125, 0),
    (-11.253, -3.251, 0),
    (6.747, -3.251, 0),
    (32.99, -11.125, 0),
    (24.735, -4.394, 0),
    (32.99, 2.337, 0),
    (41.245, -4.394, 0),
    (3.659, 4.548, 0),
    (21.659, 4.548, 0),
    (3.659, -11.051, 0),
    (21.659, -11.051, 0),
    (-11.179, -11.051, 0),
    (6.821, -11.051, 0),
    (24.809, -11.051, 0),
    (-11.179, 4.548, 0),
    (6.821, 4.548, 0),
    (24.809, 2.262, 0),
    (41.171, 2.262, 0),
    (41.171, -11.051, 0),
]))
chamfer.setExpression("Size", "Params.chamfer_size")
doc.recompute()

chamfer2 = body.newObject("PartDesign::Chamfer", "Chamfer001")
chamfer2.Base = (chamfer, edges_at(chamfer, [
    (40.64, 7.798, 2.54),
    (42.227, 12.789, 2.54),
    (40.64, 17.78, 2.54),
    (39.053, 12.789, 2.54),
    (34.388, 7.798, 2.54),
    (35.975, 12.789, 2.54),
    (34.388, 17.78, 2.54),
    (32.8, 12.789, 2.54),
    (28.135, 7.798, 2.54),
    (29.723, 12.789, 2.54),
    (28.135, 17.78, 2.54),
    (26.548, 12.789, 2.54),
    (21.883, 7.798, 2.54),
    (23.471, 12.789, 2.54),
    (21.883, 17.78, 2.54),
    (20.296, 12.789, 2.54),
    (15.631, 7.798, 2.54),
    (17.218, 12.789, 2.54),
    (15.631, 17.78, 2.54),
    (14.043, 12.789, 2.54),
    (3.126, 7.798, 2.54),
    (4.714, 9.617, 2.54),
    (3.126, 11.437, 2.54),
    (1.539, 9.617, 2.54),
    (-3.126, 7.798, 2.54),
    (-1.539, 9.617, 2.54),
    (-3.126, 11.437, 2.54),
    (-4.714, 9.617, 2.54),
    (-9.378, 7.798, 2.54),
    (-7.791, 12.789, 2.54),
    (-9.378, 17.78, 2.54),
    (-10.966, 12.789, 2.54),
    (9.378, 7.798, 2.54),
    (10.966, 12.789, 2.54),
    (9.378, 17.78, 2.54),
    (7.791, 12.789, 2.54),
    (-14.043, 11.665, 2.54),
    (-15.631, 17.78, 2.54),
    (-17.218, 11.665, 2.54),
    (-20.296, 11.665, 2.54),
    (-21.883, 17.78, 2.54),
    (-23.471, 11.665, 2.54),
    (-26.548, 11.665, 2.54),
    (-28.135, 17.78, 2.54),
    (-29.723, 11.665, 2.54),
    (-32.8, 11.665, 2.54),
    (-34.388, 17.78, 2.54),
    (-35.975, 11.665, 2.54),
    (-39.053, 11.665, 2.54),
    (-40.64, 17.78, 2.54),
    (-42.227, 11.665, 2.54),
    (0, 20.955, 2.54),
    (-28.135, 1.105, 2.54),
    (-29.723, -5.01, 2.54),
    (-28.135, -11.125, 2.54),
    (-26.548, -5.01, 2.54),
    (-21.883, 5.55, 2.54),
    (-21.883, 1.105, 2.54),
    (-23.471, -5.01, 2.54),
    (-21.883, -11.125, 2.54),
    (-20.296, -5.01, 2.54),
    (-15.631, 5.55, 2.54),
    (-40.64, 1.105, 2.54),
    (-42.227, -5.01, 2.54),
    (-40.64, -11.125, 2.54),
    (-39.053, -5.01, 2.54),
    (-34.388, 5.55, 2.54),
    (-34.388, 1.105, 2.54),
    (-35.975, -5.01, 2.54),
    (-34.388, -11.125, 2.54),
    (-32.8, -5.01, 2.54),
    (54.61, 0, 2.54),
    (-28.135, 5.55, 2.54),
    (-15.631, 1.105, 2.54),
    (-17.218, -5.01, 2.54),
    (-15.631, -11.125, 2.54),
    (-14.043, -5.01, 2.54),
    (-54.61, 0, 2.54),
    (-40.64, 5.55, 2.54),
    (0, -20.955, 2.54),
    (-53.866, 20.211, 2.54),
    (-53.866, -20.211, 2.54),
    (53.866, -20.211, 2.54),
    (53.866, 20.211, 2.54),
    (-3.76, 4.623, 2.54),
    (3.733, -3.251, 2.54),
    (14.24, 4.623, 2.54),
    (21.733, -3.251, 2.54),
    (-3.76, -11.125, 2.54),
    (14.24, -11.125, 2.54),
    (-11.253, -3.251, 2.54),
    (6.747, -3.251, 2.54),
    (32.99, -11.125, 2.54),
    (24.735, -4.394, 2.54),
    (32.99, 2.337, 2.54),
    (41.245, -4.394, 2.54),
    (3.659, 4.548, 2.54),
    (21.659, 4.548, 2.54),
    (3.659, -11.051, 2.54),
    (21.659, -11.051, 2.54),
    (-11.179, -11.051, 2.54),
    (6.821, -11.051, 2.54),
    (24.809, -11.051, 2.54),
    (-11.179, 4.548, 2.54),
    (6.821, 4.548, 2.54),
    (24.809, 2.262, 2.54),
    (41.171, 2.262, 2.54),
    (41.171, -11.051, 2.54),
]))
chamfer2.setExpression("Size", "Params.chamfer2_size")

doc.recompute()
